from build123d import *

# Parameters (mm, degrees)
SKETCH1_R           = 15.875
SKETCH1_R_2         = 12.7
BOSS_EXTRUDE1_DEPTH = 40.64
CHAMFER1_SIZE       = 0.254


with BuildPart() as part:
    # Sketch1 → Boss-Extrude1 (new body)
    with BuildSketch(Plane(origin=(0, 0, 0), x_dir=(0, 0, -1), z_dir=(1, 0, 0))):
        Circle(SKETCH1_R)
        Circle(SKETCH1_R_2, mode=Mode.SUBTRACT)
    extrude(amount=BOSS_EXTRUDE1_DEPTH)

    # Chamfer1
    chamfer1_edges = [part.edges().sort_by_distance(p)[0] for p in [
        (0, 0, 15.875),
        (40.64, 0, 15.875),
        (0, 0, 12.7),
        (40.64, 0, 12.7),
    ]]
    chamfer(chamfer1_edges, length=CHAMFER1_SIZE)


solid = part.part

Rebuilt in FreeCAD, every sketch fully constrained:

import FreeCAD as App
import Part
import Sketcher
Q = App.Units.Quantity


def edges_at(feature, points):
    """Names of the edges that pass closest to the given points."""
    edges = feature.Shape.Edges
    near = lambda p: min(range(len(edges)), key=lambda i: edges[i].distToShape(Part.Vertex(*p))[0])
    return sorted({f"Edge{near(p) + 1}" for p in points})

doc = App.newDocument("Part")
body = doc.addObject("PartDesign::Body", "Body")

# Sketch on YZ plane
sketch1 = body.newObject("Sketcher::SketchObject", "Sketch")
sketch1.AttachmentSupport = (doc.getObject("YZ_Plane"), [""])
sketch1.MapMode = "FlatFace"
sketch1.addGeometry([
    Part.Circle(App.Vector(0, 0, 0), App.Vector(0, 0, 1), 16),
    Part.Circle(App.Vector(0, 0, 0), App.Vector(0, 0, 1), 13),
], False)
sketch1.addConstraint([
    Sketcher.Constraint("Coincident", 0, 3, -1, 1),
    Sketcher.Constraint("Coincident", 1, 3, -1, 1),
    Sketcher.Constraint("Diameter", 1, Q("1 in")),
    Sketcher.Constraint("Diameter", 0, Q("1.25 in")),
])
pad1 = body.newObject("PartDesign::Pad", "Pad")
pad1.Profile = sketch1
pad1.Length = Q("1.6 in")
doc.recompute()

chamfer = body.newObject("PartDesign::Chamfer", "Chamfer")
chamfer.Base = (pad1, edges_at(pad1, [
    (0, 0, 15.875),
    (40.64, 0, 15.875),
    (0, 0, 12.7),
    (40.64, 0, 12.7),
]))
chamfer.Size = Q("0.01 in")

doc.recompute()
